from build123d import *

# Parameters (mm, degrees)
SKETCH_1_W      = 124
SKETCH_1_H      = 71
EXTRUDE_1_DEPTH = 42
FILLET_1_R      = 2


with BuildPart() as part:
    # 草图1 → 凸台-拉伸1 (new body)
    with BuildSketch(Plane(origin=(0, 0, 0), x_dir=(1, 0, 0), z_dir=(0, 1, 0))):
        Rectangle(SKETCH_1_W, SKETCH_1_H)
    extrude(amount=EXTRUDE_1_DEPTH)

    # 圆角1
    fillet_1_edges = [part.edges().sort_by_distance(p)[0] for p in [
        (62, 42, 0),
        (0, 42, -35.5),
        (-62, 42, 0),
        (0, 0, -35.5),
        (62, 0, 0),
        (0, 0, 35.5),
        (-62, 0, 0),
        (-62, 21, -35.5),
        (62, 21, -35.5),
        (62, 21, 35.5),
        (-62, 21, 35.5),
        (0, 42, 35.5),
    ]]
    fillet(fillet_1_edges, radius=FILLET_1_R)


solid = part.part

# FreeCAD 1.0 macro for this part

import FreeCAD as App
import Part
import Sketcher
from FreeCAD import Vector

doc = App.newDocument("Part")
body = doc.addObject("PartDesign::Body", "Body")

sketch1 = body.newObject("Sketcher::SketchObject", "Sketch")
sketch1.AttachmentSupport = (doc.getObject("XZ_Plane"), [""])
sketch1.MapMode = "FlatFace"
sketch1.addGeometry(Part.LineSegment(Vector(-62, -36, 0), Vector(-62, 36, 0)), False)
sketch1.addGeometry(Part.LineSegment(Vector(-62, 36, 0), Vector(62, 36, 0)), False)
sketch1.addGeometry(Part.LineSegment(Vector(62, 36, 0), Vector(62, -36, 0)), False)
sketch1.addGeometry(Part.LineSegment(Vector(62, -36, 0), Vector(-62, -36, 0)), False)
sketch1.addConstraint(Sketcher.Constraint("Coincident", 0, 2, 1, 1))
sketch1.addConstraint(Sketcher.Constraint("Coincident", 1, 2, 2, 1))
sketch1.addConstraint(Sketcher.Constraint("Coincident", 2, 2, 3, 1))
sketch1.addConstraint(Sketcher.Constraint("Coincident", 3, 2, 0, 1))
sketch1.addConstraint(Sketcher.Constraint("Vertical", 0))
sketch1.addConstraint(Sketcher.Constraint("Horizontal", 1))
sketch1.addConstraint(Sketcher.Constraint("Vertical", 2))
sketch1.addConstraint(Sketcher.Constraint("Horizontal", 3))
sketch1.addConstraint(Sketcher.Constraint("Symmetric", 0, 2, 2, 2, -1, 1))
sketch1.addConstraint(Sketcher.Constraint("DistanceX", 1, 1, 1, 2, 124.0))
sketch1.addConstraint(Sketcher.Constraint("DistanceY", 0, 1, 0, 2, 71.0))
pad1 = body.newObject("PartDesign::Pad", "Pad")
pad1.Profile = sketch1
pad1.Length = 42
pad1.Reversed = True
doc.recompute()

fillet = body.newObject("PartDesign::Fillet", "Fillet")
fillet.Base = (pad1, ["Edge1"])
fillet.UseAllEdges = True
fillet.Radius = 2

doc.recompute()
